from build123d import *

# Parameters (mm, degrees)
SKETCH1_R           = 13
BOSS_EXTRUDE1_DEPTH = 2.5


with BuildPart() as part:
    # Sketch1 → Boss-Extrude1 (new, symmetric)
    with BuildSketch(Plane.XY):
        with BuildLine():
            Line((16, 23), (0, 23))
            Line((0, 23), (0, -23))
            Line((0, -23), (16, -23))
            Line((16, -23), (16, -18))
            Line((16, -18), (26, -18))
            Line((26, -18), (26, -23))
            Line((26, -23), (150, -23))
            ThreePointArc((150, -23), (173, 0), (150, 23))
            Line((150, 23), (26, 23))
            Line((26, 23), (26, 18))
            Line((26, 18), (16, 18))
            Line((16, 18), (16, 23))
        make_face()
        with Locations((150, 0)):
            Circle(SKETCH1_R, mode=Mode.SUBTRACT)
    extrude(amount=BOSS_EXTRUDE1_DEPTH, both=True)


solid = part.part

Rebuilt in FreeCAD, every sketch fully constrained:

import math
import FreeCAD as App
import Part
import Sketcher

V = App.Vector

doc = App.newDocument("Part")
body = doc.addObject("PartDesign::Body", "Body")

# Sketch on XY plane
sketch1 = doc.addObject("Sketcher::SketchObject", "Sketch")
body.addObject(sketch1)
sketch1.AttachmentSupport = (doc.XY_Plane, [""])
sketch1.MapMode = "FlatFace"
sketch1.addGeometry([
    Part.LineSegment(V(16, 23, 0), V(0, 23, 0)),  # 0
    Part.LineSegment(V(0, 23, 0), V(0, -23, 0)),  # 1
    Part.LineSegment(V(0, -23, 0), V(16, -23, 0)),  # 2
    Part.LineSegment(V(16, -23, 0), V(16, -18, 0)),  # 3
    Part.LineSegment(V(16, -18, 0), V(26, -18, 0)),  # 4
    Part.LineSegment(V(26, -18, 0), V(26, -23, 0)),  # 5
    Part.LineSegment(V(26, -23, 0), V(150, -23, 0)),  # 6
    Part.ArcOfCircle(Part.Circle(V(150, 0, 0), V(0, 0, 1), 23), math.radians(-90), math.radians(90)),  # 7
    Part.LineSegment(V(150, 23, 0), V(26, 23, 0)),  # 8
    Part.LineSegment(V(26, 23, 0), V(26, 18, 0)),  # 9
    Part.LineSegment(V(26, 18, 0), V(16, 18, 0)),  # 10
    Part.LineSegment(V(16, 18, 0), V(16, 23, 0)),  # 11
    Part.Circle(V(150, 0, 0), V(0, 0, 1), 13),  # 12
], False)
sketch1.addConstraint([
    Sketcher.Constraint("Coincident", 0, 2, 1, 1),
    Sketcher.Constraint("Coincident", 1, 2, 2, 1),
    Sketcher.Constraint("Coincident", 2, 2, 3, 1),
    Sketcher.Constraint("Coincident", 3, 2, 4, 1),
    Sketcher.Constraint("Coincident", 4, 2, 5, 1),
    Sketcher.Constraint("Coincident", 5, 2, 6, 1),
    Sketcher.Constraint("Tangent", 6, 2, 7, 1),
    Sketcher.Constraint("Tangent", 7, 2, 8, 1),
    Sketcher.Constraint("Coincident", 8, 2, 9, 1),
    Sketcher.Constraint("Coincident", 9, 2, 10, 1),
    Sketcher.Constraint("Coincident", 10, 2, 11, 1),
    Sketcher.Constraint("Coincident", 11, 2, 0, 1),
    Sketcher.Constraint("Horizontal", 0),
    Sketcher.Constraint("Vertical", 1),
    Sketcher.Constraint("Horizontal", 2),
    Sketcher.Constraint("Vertical", 3),
    Sketcher.Constraint("Horizontal", 4),
    Sketcher.Constraint("Vertical", 5),
    Sketcher.Constraint("Horizontal", 6),
    Sketcher.Constraint("Horizontal", 8),
    Sketcher.Constraint("Vertical", 9),
    Sketcher.Constraint("Horizontal", 10),
    Sketcher.Constraint("Vertical", 11),
    Sketcher.Constraint("Coincident", 12, 3, 7, 3),
    Sketcher.Constraint("Symmetric", 0, 2, 1, 2, -1, 1),
    Sketcher.Constraint("Symmetric", 5, 2, 8, 2, -1),
    Sketcher.Constraint("Symmetric", 3, 2, 10, 2, -1),
    Sketcher.Constraint("Horizontal", 2, 2, 5, 2),
    Sketcher.Constraint("Diameter", 12, 26.0),
    Sketcher.Constraint("Radius", 7, 23.0),
    Sketcher.Constraint("DistanceX", 0, 2, 0, 1, 16.0),
    Sketcher.Constraint("DistanceX", 4, 1, 4, 2, 10.0),
    Sketcher.Constraint("DistanceX", 6, 1, 6, 2, 124.0),
    Sketcher.Constraint("DistanceY", 3, 1, 3, 2, 5.0),
])
pad1 = doc.addObject("PartDesign::Pad", "Pad")
body.addObject(pad1)
pad1.Profile = sketch1
pad1.Length = 5
pad1.Midplane = True

doc.recompute()
